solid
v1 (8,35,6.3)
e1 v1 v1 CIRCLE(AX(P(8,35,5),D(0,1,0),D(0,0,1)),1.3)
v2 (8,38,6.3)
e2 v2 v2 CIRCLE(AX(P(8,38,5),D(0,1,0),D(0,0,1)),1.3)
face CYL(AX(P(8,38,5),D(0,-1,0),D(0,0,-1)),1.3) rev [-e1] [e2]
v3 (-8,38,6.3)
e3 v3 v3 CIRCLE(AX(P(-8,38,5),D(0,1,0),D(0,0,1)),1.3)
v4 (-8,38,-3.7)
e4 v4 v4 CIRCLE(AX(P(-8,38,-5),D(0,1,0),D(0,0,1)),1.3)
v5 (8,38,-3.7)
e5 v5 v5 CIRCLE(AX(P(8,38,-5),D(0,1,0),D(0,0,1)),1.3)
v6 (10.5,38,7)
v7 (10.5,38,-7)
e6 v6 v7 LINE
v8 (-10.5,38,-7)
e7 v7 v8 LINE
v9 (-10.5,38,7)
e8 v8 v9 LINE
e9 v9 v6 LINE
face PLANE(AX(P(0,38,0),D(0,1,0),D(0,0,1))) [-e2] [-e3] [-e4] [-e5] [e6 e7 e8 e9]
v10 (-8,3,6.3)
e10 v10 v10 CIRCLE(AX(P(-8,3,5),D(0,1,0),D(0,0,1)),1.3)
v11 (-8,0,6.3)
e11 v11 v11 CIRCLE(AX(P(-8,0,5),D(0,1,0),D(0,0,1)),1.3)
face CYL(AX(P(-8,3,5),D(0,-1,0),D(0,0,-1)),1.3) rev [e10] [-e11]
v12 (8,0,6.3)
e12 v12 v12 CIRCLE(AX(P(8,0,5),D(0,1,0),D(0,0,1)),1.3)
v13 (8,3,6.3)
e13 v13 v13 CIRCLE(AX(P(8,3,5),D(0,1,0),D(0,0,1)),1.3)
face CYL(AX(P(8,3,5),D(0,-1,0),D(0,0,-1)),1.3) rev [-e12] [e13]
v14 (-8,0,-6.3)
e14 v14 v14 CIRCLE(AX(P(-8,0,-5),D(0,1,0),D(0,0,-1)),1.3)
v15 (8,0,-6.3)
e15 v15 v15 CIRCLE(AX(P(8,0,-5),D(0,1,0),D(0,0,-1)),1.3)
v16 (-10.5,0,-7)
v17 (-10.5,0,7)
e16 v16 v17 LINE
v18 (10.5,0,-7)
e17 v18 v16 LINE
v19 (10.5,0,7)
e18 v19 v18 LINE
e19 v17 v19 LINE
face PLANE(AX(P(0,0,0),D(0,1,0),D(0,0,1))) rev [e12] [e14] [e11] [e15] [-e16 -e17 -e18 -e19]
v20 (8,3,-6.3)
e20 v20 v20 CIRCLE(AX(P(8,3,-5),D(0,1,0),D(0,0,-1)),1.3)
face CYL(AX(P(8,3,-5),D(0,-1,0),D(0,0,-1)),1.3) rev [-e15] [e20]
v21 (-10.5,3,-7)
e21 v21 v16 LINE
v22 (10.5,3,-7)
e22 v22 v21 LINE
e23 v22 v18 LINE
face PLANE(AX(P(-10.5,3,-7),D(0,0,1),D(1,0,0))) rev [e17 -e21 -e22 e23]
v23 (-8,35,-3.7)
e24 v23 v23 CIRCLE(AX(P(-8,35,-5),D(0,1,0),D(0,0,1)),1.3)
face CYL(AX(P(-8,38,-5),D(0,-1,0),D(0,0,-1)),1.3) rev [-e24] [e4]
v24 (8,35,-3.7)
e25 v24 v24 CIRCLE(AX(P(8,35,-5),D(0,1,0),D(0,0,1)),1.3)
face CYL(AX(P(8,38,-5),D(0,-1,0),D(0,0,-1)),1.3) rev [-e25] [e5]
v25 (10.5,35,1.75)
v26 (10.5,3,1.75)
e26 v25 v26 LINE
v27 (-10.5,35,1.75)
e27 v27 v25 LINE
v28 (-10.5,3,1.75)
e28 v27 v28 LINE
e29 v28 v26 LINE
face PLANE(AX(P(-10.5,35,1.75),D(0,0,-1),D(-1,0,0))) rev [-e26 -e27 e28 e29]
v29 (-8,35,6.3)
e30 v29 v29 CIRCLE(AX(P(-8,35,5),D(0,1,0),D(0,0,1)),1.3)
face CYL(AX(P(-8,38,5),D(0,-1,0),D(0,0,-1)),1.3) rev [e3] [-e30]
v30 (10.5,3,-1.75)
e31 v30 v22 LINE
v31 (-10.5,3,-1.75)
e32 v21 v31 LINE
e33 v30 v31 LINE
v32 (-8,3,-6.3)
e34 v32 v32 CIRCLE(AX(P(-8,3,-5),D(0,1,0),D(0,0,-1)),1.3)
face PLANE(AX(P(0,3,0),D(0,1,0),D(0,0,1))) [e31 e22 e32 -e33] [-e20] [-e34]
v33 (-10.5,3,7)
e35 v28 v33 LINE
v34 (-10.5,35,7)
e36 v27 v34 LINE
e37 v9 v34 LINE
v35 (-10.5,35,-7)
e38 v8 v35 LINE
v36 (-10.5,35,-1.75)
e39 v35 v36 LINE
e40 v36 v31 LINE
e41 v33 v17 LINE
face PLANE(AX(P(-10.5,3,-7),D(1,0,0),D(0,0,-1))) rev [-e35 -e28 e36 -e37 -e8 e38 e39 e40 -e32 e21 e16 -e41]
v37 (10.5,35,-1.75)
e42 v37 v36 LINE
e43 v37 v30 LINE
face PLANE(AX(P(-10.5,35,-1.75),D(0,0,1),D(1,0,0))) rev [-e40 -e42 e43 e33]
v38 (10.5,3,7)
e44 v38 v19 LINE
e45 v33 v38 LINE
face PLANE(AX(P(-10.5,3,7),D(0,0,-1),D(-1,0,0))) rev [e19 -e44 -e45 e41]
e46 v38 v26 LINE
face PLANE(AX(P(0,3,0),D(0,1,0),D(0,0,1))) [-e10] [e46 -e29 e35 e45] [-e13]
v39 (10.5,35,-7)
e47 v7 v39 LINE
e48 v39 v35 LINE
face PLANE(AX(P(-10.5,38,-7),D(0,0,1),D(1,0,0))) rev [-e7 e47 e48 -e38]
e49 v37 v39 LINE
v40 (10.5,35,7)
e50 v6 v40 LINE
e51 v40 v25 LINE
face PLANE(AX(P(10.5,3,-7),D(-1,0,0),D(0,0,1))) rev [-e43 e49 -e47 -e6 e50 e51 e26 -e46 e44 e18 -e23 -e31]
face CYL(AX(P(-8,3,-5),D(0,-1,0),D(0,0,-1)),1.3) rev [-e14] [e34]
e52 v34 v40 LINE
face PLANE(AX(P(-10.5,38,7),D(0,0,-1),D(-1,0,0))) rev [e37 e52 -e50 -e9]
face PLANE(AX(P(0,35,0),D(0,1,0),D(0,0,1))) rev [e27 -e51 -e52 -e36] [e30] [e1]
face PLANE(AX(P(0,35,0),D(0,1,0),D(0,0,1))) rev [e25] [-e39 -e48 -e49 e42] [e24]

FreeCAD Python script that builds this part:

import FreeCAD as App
import Part
import Sketcher

V = App.Vector


def add_polygon(sketch, points):
    """Adds a closed chain of lines whose ends are joined by coincident constraints."""
    first, n = sketch.GeometryCount, len(points)
    for a, b in zip(points, points[1:] + points[:1]):
        sketch.addGeometry(Part.LineSegment(App.Vector(*a, 0), App.Vector(*b, 0)), False)
    for i in range(n):
        sketch.addConstraint(Sketcher.Constraint("Coincident", first + i, 2, first + (i + 1) % n, 1))

doc = App.newDocument("Part")
body = doc.addObject("PartDesign::Body", "Body")

# Sketch on XZ plane
sketch1 = doc.addObject("Sketcher::SketchObject", "Sketch")
body.addObject(sketch1)
sketch1.AttachmentSupport = (doc.XZ_Plane, [""])
sketch1.MapMode = "FlatFace"
add_polygon(sketch1, [(-10.5, -7), (-10.5, 7), (10.5, 7), (10.5, -7)])  # lines 0-3
sketch1.addGeometry(Part.Circle(V(-8, 5, 0), V(0, 0, 1), 1.3), False)  # 4
sketch1.addGeometry(Part.Circle(V(8, 5, 0), V(0, 0, 1), 1.3), False)  # 5
sketch1.addGeometry(Part.Circle(V(-8, -5, 0), V(0, 0, 1), 1.3), False)  # 6
sketch1.addGeometry(Part.Circle(V(8, -5, 0), V(0, 0, 1), 1.3), False)  # 7
sketch1.addConstraint([
    Sketcher.Constraint("Vertical", 0),
    Sketcher.Constraint("Horizontal", 1),
    Sketcher.Constraint("Vertical", 2),
    Sketcher.Constraint("Horizontal", 3),
    Sketcher.Constraint("Equal", 4, 5),
    Sketcher.Constraint("Equal", 5, 6),
    Sketcher.Constraint("Equal", 6, 7),
    Sketcher.Constraint("Symmetric", 5, 3, 6, 3, -1, 1),
    Sketcher.Constraint("Symmetric", 4, 3, 7, 3, -1, 1),
    Sketcher.Constraint("Symmetric", 0, 2, 2, 2, -1, 1),
    Sketcher.Constraint("Symmetric", 4, 3, 5, 3, -2),
    Sketcher.Constraint("Diameter", 4, 2.6),
    Sketcher.Constraint("DistanceX", 1, 1, 1, 2, 21.0),
    Sketcher.Constraint("DistanceY", 0, 1, 0, 2, 14.0),
    Sketcher.Constraint("DistanceX", 4, 3, -1, 1, 8.0),
    Sketcher.Constraint("DistanceY", -1, 1, 4, 3, 5.0),
])
pad1 = doc.addObject("PartDesign::Pad", "Pad")
body.addObject(pad1)
pad1.Profile = sketch1
pad1.Length = 3
pad1.Reversed = True

# Sketch on XZ plane
sketch2 = doc.addObject("Sketcher::SketchObject", "Sketch001")
body.addObject(sketch2)
sketch2.AttachmentSupport = (doc.XZ_Plane, [""])
sketch2.MapMode = "FlatFace"
sketch2.AttachmentOffset = App.Placement(V(0, 0, -3), App.Rotation())
add_polygon(sketch2, [(-10.5, -1.75), (-10.5, 1.75), (10.5, 1.75), (10.5, -1.75)])  # lines 0-3
sketch2.addConstraint([
    Sketcher.Constraint("Vertical", 0),
    Sketcher.Constraint("Horizontal", 1),
    Sketcher.Constraint("Vertical", 2),
    Sketcher.Constraint("Horizontal", 3),
    Sketcher.Constraint("Symmetric", 0, 2, 2, 2, -1, 1),
    Sketcher.Constraint("DistanceX", 1, 1, 1, 2, 21.0),
    Sketcher.Constraint("DistanceY", 0, 1, 0, 2, 3.5),
])
pad2 = doc.addObject("PartDesign::Pad", "Pad001")
body.addObject(pad2)
pad2.Profile = sketch2
pad2.Length = 32
pad2.Reversed = True

# Sketch on XZ plane
sketch3 = doc.addObject("Sketcher::SketchObject", "Sketch002")
body.addObject(sketch3)
sketch3.AttachmentSupport = (doc.XZ_Plane, [""])
sketch3.MapMode = "FlatFace"
sketch3.AttachmentOffset = App.Placement(V(0, 0, -35), App.Rotation())
add_polygon(sketch3, [(-10.5, -7), (-10.5, 7), (10.5, 7), (10.5, -7)])  # lines 0-3
sketch3.addGeometry(Part.Circle(V(-8, 5, 0), V(0, 0, 1), 1.3), False)  # 4
sketch3.addGeometry(Part.Circle(V(8, 5, 0), V(0, 0, 1), 1.3), False)  # 5
sketch3.addGeometry(Part.Circle(V(-8, -5, 0), V(0, 0, 1), 1.3), False)  # 6
sketch3.addGeometry(Part.Circle(V(8, -5, 0), V(0, 0, 1), 1.3), False)  # 7
sketch3.addConstraint([
    Sketcher.Constraint("Vertical", 0),
    Sketcher.Constraint("Horizontal", 1),
    Sketcher.Constraint("Vertical", 2),
    Sketcher.Constraint("Horizontal", 3),
    Sketcher.Constraint("Equal", 4, 5),
    Sketcher.Constraint("Equal", 5, 6),
    Sketcher.Constraint("Equal", 6, 7),
    Sketcher.Constraint("Symmetric", 5, 3, 6, 3, -1, 1),
    Sketcher.Constraint("Symmetric", 4, 3, 7, 3, -1, 1),
    Sketcher.Constraint("Symmetric", 0, 2, 2, 2, -1, 1),
    Sketcher.Constraint("Symmetric", 4, 3, 5, 3, -2),
    Sketcher.Constraint("Diameter", 4, 2.6),
    Sketcher.Constraint("DistanceX", 1, 1, 1, 2, 21.0),
    Sketcher.Constraint("DistanceY", 0, 1, 0, 2, 14.0),
    Sketcher.Constraint("DistanceX", 4, 3, -1, 1, 8.0),
    Sketcher.Constraint("DistanceY", -1, 1, 4, 3, 5.0),
])
pad3 = doc.addObject("PartDesign::Pad", "Pad002")
body.addObject(pad3)
pad3.Profile = sketch3
pad3.Length = 3
pad3.Reversed = True

doc.recompute()
